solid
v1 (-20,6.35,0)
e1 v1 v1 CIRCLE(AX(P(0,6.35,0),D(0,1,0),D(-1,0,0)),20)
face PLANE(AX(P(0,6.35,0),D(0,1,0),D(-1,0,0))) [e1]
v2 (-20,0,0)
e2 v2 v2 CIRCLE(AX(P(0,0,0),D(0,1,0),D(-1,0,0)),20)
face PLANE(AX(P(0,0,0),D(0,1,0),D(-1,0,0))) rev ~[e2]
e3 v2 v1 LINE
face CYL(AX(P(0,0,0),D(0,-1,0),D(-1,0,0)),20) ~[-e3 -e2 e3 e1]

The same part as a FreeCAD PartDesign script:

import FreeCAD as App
import Part
import Sketcher
from FreeCAD import Vector
Q = App.Units.Quantity

doc = App.newDocument("Part")
body = doc.addObject("PartDesign::Body", "Body")

# Sketch on XZ plane
sketch1 = body.newObject("Sketcher::SketchObject", "Sketch")
sketch1.AttachmentSupport = (doc.getObject("XZ_Plane"), [""])
sketch1.MapMode = "FlatFace"
sketch1.addGeometry(Part.Circle(Vector(0, 0, 0), Vector(0, 0, 1), 20), False)
sketch1.addConstraint(Sketcher.Constraint("Coincident", 0, 3, -1, 1))
sketch1.addConstraint(Sketcher.Constraint("Diameter", 0, Q("1.5748 in")))
pad1 = body.newObject("PartDesign::Pad", "Pad")
pad1.Profile = sketch1
pad1.Length = Q("0.25 in")
pad1.Reversed = True

doc.recompute()
